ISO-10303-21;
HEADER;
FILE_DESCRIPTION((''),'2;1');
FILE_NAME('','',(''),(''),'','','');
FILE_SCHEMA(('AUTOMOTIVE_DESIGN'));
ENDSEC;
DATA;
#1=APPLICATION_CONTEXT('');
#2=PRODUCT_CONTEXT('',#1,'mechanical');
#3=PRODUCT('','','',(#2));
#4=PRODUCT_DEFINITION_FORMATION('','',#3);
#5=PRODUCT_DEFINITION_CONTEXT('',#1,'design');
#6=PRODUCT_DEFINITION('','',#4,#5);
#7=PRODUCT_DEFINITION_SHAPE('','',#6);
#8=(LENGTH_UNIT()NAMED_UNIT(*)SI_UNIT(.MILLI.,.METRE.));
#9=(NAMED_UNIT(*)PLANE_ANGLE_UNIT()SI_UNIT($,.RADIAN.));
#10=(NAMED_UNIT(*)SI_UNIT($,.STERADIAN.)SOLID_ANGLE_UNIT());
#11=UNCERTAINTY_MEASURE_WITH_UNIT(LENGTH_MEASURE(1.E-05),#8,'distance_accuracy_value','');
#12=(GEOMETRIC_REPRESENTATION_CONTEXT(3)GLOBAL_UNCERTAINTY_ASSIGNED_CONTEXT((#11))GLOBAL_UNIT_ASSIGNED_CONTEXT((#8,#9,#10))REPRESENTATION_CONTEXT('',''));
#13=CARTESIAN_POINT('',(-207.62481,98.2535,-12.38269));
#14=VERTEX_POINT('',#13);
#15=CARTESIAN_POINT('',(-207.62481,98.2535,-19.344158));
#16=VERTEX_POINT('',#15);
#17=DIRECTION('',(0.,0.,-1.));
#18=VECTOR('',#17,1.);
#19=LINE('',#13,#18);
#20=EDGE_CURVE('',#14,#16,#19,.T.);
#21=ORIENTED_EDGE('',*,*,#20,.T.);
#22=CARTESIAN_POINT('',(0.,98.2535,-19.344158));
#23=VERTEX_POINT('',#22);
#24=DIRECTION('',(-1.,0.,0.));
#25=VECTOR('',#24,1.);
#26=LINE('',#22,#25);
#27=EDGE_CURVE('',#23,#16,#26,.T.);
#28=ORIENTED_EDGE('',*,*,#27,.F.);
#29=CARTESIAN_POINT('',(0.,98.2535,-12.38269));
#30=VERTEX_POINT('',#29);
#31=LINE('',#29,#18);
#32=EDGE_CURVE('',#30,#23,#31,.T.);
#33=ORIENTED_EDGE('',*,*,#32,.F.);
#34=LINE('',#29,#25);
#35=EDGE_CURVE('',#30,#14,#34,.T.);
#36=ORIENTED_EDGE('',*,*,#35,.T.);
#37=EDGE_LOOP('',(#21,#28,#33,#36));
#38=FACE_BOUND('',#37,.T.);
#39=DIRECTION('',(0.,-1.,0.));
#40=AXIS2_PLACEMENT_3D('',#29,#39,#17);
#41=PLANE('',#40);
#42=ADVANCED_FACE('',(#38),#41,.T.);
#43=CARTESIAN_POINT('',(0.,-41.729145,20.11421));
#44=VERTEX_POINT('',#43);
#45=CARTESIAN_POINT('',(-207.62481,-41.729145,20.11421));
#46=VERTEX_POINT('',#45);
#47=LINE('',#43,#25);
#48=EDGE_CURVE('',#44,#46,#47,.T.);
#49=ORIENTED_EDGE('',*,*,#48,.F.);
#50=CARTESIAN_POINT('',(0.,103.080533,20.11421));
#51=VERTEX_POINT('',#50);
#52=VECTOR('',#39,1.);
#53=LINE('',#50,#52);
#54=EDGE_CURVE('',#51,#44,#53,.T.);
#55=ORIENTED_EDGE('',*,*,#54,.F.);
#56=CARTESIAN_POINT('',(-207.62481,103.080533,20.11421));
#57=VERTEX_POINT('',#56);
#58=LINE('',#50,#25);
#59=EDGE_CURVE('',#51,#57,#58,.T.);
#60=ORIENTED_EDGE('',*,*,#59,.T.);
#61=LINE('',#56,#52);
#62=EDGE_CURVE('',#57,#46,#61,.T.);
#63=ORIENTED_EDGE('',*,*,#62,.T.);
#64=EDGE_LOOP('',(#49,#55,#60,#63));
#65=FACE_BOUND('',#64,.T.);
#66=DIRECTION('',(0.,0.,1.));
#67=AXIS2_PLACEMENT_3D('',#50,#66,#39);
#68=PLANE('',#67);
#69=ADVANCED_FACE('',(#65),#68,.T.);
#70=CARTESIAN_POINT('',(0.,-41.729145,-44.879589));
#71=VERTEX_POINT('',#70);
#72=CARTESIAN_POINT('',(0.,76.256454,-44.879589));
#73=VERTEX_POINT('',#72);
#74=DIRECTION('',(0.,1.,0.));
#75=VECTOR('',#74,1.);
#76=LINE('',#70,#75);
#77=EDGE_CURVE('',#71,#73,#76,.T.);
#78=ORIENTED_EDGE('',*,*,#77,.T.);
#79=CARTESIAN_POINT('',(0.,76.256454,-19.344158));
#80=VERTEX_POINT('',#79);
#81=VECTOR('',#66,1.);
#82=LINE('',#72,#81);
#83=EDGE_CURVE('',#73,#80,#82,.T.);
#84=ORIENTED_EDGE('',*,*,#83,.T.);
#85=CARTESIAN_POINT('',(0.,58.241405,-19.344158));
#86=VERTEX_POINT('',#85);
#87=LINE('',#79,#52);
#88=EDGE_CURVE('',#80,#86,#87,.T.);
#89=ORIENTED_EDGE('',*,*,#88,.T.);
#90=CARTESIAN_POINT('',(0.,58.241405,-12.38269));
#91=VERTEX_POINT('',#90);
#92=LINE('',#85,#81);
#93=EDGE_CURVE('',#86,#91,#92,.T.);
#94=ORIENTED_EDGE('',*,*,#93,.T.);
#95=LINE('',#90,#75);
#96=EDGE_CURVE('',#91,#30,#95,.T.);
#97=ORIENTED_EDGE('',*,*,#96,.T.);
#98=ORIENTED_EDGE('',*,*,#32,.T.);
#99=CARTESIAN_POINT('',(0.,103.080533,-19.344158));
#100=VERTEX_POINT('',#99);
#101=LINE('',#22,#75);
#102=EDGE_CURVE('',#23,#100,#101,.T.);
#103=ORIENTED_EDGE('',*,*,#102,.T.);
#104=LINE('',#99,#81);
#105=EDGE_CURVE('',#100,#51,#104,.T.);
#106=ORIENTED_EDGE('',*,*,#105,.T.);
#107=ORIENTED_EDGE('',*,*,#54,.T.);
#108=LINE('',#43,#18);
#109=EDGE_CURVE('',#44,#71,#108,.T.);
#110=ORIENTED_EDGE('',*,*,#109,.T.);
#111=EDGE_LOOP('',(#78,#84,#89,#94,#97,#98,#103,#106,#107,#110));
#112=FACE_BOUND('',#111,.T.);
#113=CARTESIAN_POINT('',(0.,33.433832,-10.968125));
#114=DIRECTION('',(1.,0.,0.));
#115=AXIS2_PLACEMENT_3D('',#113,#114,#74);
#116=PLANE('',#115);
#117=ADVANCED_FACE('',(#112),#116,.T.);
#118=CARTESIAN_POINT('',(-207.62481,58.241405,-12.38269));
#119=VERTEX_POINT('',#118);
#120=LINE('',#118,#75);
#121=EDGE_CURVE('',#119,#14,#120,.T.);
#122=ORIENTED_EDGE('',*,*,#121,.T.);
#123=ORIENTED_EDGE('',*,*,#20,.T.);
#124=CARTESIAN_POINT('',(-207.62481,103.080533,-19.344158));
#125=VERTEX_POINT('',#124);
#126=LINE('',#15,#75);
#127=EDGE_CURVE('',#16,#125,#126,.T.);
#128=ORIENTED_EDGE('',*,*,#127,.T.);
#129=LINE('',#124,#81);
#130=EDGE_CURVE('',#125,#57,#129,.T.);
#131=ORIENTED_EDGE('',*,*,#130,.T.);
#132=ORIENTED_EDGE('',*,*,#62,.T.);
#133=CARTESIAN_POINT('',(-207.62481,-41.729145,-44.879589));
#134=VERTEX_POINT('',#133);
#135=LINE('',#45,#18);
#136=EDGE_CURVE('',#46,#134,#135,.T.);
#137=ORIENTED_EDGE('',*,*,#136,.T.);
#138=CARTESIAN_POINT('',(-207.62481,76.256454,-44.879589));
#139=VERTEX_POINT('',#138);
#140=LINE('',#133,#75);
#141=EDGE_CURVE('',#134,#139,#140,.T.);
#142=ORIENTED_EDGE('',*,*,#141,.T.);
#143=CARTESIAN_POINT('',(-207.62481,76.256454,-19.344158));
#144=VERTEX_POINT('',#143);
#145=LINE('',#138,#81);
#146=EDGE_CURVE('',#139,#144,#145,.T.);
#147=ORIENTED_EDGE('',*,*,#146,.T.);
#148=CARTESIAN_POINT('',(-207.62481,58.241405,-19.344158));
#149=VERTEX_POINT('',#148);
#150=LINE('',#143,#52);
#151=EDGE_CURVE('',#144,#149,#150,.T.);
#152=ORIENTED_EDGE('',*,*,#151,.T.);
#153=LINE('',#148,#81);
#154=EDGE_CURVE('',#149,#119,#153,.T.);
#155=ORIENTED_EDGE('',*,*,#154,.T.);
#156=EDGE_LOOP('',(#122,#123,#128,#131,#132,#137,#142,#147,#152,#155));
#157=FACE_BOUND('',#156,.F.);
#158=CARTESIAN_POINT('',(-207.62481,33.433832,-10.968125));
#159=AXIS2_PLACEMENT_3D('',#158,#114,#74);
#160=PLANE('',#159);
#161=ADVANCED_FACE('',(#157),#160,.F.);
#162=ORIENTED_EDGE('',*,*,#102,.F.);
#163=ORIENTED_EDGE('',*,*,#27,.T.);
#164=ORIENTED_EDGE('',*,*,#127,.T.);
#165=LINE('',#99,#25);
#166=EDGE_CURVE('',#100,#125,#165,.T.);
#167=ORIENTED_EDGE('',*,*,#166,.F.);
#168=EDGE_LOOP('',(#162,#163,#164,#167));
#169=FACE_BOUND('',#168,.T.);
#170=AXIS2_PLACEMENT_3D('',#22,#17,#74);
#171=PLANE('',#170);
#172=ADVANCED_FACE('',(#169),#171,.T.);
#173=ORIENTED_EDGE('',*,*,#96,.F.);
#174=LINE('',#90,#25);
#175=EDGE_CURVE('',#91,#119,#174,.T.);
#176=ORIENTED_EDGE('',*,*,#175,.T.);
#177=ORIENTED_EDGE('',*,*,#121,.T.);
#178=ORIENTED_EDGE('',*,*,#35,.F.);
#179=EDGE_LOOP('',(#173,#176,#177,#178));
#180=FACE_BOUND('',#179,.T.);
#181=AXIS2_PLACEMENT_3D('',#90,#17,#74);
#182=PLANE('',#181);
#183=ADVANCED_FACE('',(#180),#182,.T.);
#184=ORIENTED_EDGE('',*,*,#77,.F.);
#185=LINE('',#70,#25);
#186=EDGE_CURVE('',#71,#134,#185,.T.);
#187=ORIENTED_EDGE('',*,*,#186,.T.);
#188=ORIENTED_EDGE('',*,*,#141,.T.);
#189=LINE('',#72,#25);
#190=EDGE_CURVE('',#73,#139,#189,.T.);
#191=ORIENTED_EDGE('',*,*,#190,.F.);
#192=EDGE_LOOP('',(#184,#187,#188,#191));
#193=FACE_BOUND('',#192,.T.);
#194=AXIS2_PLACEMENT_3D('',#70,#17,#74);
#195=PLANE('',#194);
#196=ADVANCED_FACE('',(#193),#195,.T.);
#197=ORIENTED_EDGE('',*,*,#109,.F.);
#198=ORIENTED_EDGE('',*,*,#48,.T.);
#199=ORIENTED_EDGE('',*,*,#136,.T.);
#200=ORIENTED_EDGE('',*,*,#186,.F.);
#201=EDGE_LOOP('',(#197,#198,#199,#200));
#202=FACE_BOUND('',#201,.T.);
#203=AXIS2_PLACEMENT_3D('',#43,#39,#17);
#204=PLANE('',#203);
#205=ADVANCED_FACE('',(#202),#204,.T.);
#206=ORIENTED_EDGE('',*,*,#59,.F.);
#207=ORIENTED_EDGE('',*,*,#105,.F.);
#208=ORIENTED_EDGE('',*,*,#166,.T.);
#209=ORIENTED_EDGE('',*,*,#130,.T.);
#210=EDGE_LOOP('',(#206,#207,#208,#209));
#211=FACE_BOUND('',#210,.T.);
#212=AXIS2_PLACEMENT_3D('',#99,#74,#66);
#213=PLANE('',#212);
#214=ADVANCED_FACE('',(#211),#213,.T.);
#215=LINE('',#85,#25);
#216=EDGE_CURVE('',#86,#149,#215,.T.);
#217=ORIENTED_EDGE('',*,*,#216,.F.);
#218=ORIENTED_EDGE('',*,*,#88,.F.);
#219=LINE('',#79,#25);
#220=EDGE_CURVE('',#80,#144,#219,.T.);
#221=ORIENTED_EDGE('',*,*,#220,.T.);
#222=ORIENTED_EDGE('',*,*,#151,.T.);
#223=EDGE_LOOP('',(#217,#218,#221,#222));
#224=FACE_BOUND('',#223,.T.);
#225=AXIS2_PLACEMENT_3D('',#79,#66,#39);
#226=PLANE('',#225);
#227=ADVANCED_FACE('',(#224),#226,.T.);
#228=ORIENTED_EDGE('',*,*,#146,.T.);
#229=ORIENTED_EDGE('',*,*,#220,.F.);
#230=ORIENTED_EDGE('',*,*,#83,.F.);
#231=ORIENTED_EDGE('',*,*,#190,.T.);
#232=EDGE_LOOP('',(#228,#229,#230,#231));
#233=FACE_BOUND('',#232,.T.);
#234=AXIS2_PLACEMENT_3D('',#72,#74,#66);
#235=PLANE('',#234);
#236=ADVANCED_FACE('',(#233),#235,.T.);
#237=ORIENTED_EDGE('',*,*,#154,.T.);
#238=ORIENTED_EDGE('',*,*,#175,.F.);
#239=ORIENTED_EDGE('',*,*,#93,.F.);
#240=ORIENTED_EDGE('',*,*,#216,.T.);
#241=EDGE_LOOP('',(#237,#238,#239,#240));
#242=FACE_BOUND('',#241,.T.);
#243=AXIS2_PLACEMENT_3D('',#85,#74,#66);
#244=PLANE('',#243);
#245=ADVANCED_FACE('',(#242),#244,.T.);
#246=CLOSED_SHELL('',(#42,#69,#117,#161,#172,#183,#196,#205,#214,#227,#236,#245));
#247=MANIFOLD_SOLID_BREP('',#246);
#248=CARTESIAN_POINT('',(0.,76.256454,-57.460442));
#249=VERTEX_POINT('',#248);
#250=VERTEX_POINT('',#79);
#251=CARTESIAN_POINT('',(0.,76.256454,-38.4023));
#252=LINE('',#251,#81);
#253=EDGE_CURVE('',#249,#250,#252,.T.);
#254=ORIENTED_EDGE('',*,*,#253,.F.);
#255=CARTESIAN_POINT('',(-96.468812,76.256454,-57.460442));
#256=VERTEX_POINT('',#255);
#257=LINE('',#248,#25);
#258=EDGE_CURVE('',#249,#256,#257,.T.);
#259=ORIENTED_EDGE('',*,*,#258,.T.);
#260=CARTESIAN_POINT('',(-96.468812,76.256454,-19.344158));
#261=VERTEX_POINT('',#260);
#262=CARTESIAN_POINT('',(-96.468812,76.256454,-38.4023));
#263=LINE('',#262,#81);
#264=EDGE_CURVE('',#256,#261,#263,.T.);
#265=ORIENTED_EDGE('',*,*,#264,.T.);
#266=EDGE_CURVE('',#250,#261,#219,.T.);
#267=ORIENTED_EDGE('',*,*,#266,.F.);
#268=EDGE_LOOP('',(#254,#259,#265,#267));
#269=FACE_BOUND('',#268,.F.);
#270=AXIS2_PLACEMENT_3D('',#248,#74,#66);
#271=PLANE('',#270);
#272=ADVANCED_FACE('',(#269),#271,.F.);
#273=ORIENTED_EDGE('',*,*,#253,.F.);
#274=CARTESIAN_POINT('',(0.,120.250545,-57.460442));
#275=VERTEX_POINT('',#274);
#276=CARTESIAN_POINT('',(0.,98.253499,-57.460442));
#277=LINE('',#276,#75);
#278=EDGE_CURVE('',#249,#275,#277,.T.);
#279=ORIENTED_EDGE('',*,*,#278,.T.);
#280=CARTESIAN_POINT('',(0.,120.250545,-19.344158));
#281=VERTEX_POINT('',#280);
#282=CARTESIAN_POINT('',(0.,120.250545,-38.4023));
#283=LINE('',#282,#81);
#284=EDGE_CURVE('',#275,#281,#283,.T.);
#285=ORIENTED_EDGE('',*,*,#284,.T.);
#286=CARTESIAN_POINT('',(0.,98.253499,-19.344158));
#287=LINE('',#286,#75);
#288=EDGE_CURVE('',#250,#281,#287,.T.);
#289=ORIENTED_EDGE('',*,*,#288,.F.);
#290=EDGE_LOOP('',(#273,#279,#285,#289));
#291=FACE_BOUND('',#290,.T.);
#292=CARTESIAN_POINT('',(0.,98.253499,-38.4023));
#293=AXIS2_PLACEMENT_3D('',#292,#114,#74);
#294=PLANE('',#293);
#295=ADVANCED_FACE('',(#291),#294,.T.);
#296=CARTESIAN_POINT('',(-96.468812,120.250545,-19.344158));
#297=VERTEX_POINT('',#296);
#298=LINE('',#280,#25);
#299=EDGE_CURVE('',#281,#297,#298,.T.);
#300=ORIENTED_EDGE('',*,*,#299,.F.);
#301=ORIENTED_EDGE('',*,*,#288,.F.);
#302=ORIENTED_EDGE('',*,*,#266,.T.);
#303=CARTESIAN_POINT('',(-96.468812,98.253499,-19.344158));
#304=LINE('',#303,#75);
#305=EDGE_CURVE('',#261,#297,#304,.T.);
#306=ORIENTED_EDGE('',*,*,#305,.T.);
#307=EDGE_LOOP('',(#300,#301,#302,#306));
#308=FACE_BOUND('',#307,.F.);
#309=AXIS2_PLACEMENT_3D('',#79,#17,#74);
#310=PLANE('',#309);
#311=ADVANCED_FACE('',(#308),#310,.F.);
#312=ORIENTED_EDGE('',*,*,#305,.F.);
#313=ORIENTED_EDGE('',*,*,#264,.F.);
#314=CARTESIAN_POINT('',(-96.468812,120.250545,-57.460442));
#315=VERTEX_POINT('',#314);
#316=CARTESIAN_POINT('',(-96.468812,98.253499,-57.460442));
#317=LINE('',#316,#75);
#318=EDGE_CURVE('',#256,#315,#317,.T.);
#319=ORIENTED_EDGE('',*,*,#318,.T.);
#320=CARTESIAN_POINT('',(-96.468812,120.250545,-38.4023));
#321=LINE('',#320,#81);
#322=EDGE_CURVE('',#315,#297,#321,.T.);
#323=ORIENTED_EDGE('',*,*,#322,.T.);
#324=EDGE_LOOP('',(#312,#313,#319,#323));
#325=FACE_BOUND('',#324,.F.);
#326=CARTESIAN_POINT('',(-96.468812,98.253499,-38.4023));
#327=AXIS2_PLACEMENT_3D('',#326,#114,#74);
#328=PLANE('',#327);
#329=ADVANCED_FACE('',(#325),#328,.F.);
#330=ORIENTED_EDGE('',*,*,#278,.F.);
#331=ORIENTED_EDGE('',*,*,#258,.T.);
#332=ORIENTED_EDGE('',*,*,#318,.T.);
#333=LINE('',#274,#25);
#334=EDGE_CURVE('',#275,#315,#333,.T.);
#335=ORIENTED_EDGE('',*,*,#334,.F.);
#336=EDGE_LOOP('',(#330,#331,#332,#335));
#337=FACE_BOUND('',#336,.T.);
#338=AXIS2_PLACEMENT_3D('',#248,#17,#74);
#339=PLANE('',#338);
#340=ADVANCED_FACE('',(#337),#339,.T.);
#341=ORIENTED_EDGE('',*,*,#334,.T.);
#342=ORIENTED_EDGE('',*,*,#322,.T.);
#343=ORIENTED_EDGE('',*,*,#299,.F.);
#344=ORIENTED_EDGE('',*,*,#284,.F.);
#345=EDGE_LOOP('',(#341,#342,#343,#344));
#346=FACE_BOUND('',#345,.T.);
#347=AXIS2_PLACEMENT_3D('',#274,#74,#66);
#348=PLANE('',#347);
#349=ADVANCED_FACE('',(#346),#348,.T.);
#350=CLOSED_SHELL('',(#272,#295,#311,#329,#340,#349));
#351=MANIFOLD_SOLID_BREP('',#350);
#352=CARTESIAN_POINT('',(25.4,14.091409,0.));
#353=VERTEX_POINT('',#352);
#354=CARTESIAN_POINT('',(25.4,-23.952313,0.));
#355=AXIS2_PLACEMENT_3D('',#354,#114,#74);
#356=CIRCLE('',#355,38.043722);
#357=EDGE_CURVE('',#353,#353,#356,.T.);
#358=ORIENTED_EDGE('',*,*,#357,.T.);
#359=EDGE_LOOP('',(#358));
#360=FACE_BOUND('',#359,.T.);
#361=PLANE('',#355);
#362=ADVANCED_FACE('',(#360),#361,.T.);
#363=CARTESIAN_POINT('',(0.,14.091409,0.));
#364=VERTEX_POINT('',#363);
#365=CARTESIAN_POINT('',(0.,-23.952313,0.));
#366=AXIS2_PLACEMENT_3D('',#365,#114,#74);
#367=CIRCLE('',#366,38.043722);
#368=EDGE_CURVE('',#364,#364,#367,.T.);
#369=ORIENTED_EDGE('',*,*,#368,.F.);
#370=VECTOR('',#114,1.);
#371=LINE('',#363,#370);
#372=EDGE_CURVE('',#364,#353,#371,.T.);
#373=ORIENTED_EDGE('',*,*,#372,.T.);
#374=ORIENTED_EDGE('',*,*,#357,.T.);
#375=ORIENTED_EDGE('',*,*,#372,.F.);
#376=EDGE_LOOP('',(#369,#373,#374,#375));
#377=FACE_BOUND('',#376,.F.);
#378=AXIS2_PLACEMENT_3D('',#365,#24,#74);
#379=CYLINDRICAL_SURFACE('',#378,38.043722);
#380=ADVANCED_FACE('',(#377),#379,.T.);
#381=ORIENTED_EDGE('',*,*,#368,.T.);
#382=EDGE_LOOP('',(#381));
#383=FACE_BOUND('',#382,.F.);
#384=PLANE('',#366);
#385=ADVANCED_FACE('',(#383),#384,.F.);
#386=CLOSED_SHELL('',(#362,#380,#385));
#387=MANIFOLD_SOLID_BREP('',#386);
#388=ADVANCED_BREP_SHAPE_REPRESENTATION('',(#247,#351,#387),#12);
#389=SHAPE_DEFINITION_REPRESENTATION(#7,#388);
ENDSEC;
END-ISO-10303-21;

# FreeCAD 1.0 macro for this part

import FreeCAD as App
import Part
import Sketcher
Q = App.Units.Quantity

doc = App.newDocument("Part")
body = doc.addObject("PartDesign::Body", "Body")

sketch1 = doc.addObject("Sketcher::SketchObject", "Sketch")
body.addObject(sketch1)
sketch1.AttachmentSupport = (doc.YZ_Plane, [""])
sketch1.MapMode = "FlatFace"
sketch1.addGeometry(Part.Circle(App.Vector(-24, 0, 0), App.Vector(0, 0, 1), 38), False)
sketch1.addConstraint([
    Sketcher.Constraint("PointOnObject", 0, 3, -1),
    Sketcher.Constraint("Diameter", 0, Q("76.087444 mm")),
    Sketcher.Constraint("DistanceX", 0, 3, -1, 1, Q("23.952313 mm")),
])
pad1 = doc.addObject("PartDesign::Pad", "Pad")
body.addObject(pad1)
pad1.Profile = sketch1
pad1.Length = Q("1 in")
body2 = doc.addObject("PartDesign::Body", "Body001")

sketch2 = doc.addObject("Sketcher::SketchObject", "Sketch001")
body2.addObject(sketch2)
sketch2.AttachmentSupport = (doc.getObject("YZ_Plane001"), [""])
sketch2.MapMode = "FlatFace"
sketch2.addGeometry([
    Part.LineSegment(App.Vector(76, -19, 0), App.Vector(76, -57, 0)),
    Part.LineSegment(App.Vector(76, -57, 0), App.Vector(120, -57, 0)),
    Part.LineSegment(App.Vector(120, -57, 0), App.Vector(120, -19, 0)),
    Part.LineSegment(App.Vector(120, -19, 0), App.Vector(76, -19, 0)),
], False)
sketch2.addConstraint([
    Sketcher.Constraint("Coincident", 0, 2, 1, 1),
    Sketcher.Constraint("Coincident", 1, 2, 2, 1),
    Sketcher.Constraint("Coincident", 2, 2, 3, 1),
    Sketcher.Constraint("Coincident", 3, 2, 0, 1),
    Sketcher.Constraint("Vertical", 0),
    Sketcher.Constraint("Horizontal", 1),
    Sketcher.Constraint("Vertical", 2),
    Sketcher.Constraint("Horizontal", 3),
    Sketcher.Constraint("DistanceX", 1, 1, 1, 2, Q("43.994091 mm")),
    Sketcher.Constraint("DistanceY", 0, 2, 0, 1, Q("38.116284 mm")),
    Sketcher.Constraint("DistanceY", 2, 2, -1, 1, Q("19.344158 mm")),
    Sketcher.Constraint("DistanceX", -1, 1, 0, 2, Q("76.256454 mm")),
])
pad2 = doc.addObject("PartDesign::Pad", "Pad001")
body2.addObject(pad2)
pad2.Profile = sketch2
pad2.Length = 96.468812
pad2.Reversed = True
body3 = doc.addObject("PartDesign::Body", "Body002")

sketch3 = doc.addObject("Sketcher::SketchObject", "Sketch002")
body3.addObject(sketch3)
sketch3.AttachmentSupport = (doc.getObject("YZ_Plane002"), [""])
sketch3.MapMode = "FlatFace"
sketch3.addGeometry([
    Part.LineSegment(App.Vector(-41.7, -44.9, 0), App.Vector(76.3, -44.9, 0)),
    Part.LineSegment(App.Vector(76.3, -44.9, 0), App.Vector(76.3, -19.3, 0)),
    Part.LineSegment(App.Vector(76.3, -19.3, 0), App.Vector(58.2, -19.3, 0)),
    Part.LineSegment(App.Vector(58.2, -19.3, 0), App.Vector(58.2, -12.4, 0)),
    Part.LineSegment(App.Vector(58.2, -12.4, 0), App.Vector(98.3, -12.4, 0)),
    Part.LineSegment(App.Vector(98.3, -12.4, 0), App.Vector(98.3, -19.3, 0)),
    Part.LineSegment(App.Vector(98.3, -19.3, 0), App.Vector(103.1, -19.3, 0)),
    Part.LineSegment(App.Vector(103.1, -19.3, 0), App.Vector(103.1, 20.1, 0)),
    Part.LineSegment(App.Vector(103.1, 20.1, 0), App.Vector(-41.7, 20.1, 0)),
    Part.LineSegment(App.Vector(-41.7, 20.1, 0), App.Vector(-41.7, -44.9, 0)),
], False)
sketch3.addConstraint([
    Sketcher.Constraint("Coincident", 0, 2, 1, 1),
    Sketcher.Constraint("Coincident", 1, 2, 2, 1),
    Sketcher.Constraint("Coincident", 2, 2, 3, 1),
    Sketcher.Constraint("Coincident", 3, 2, 4, 1),
    Sketcher.Constraint("Coincident", 4, 2, 5, 1),
    Sketcher.Constraint("Coincident", 5, 2, 6, 1),
    Sketcher.Constraint("Coincident", 6, 2, 7, 1),
    Sketcher.Constraint("Coincident", 7, 2, 8, 1),
    Sketcher.Constraint("Coincident", 8, 2, 9, 1),
    Sketcher.Constraint("Coincident", 9, 2, 0, 1),
    Sketcher.Constraint("Horizontal", 0),
    Sketcher.Constraint("Vertical", 1),
    Sketcher.Constraint("Horizontal", 2),
    Sketcher.Constraint("Vertical", 3),
    Sketcher.Constraint("Horizontal", 4),
    Sketcher.Constraint("Vertical", 5),
    Sketcher.Constraint("Horizontal", 6),
    Sketcher.Constraint("Vertical", 7),
    Sketcher.Constraint("Horizontal", 8),
    Sketcher.Constraint("Vertical", 9),
    Sketcher.Constraint("Horizontal", 2, 2, 5, 2),
    Sketcher.Constraint("DistanceX", 0, 1, 0, 2, Q("117.985599 mm")),
    Sketcher.Constraint("DistanceY", 9, 2, 9, 1, Q("64.993799 mm")),
    Sketcher.Constraint("DistanceX", 2, 2, 2, 1, Q("18.015049 mm")),
    Sketcher.Constraint("DistanceX", 8, 2, 8, 1, Q("144.809678 mm")),
    Sketcher.Constraint("DistanceY", 1, 1, 1, 2, Q("25.535431 mm")),
    Sketcher.Constraint("DistanceX", -1, 1, 4, 2, Q("98.2535 mm")),
    Sketcher.Constraint("DistanceY", 0, 2, 3, 2, Q("32.496899 mm")),
    Sketcher.Constraint("DistanceX", 4, 1, 4, 2, Q("40.012095 mm")),
    Sketcher.Constraint("DistanceY", 0, 2, -1, 1, Q("44.879589 mm")),
])
pad3 = doc.addObject("PartDesign::Pad", "Pad002")
body3.addObject(pad3)
pad3.Profile = sketch3
pad3.Length = 207.62481
pad3.Reversed = True

doc.recompute()
